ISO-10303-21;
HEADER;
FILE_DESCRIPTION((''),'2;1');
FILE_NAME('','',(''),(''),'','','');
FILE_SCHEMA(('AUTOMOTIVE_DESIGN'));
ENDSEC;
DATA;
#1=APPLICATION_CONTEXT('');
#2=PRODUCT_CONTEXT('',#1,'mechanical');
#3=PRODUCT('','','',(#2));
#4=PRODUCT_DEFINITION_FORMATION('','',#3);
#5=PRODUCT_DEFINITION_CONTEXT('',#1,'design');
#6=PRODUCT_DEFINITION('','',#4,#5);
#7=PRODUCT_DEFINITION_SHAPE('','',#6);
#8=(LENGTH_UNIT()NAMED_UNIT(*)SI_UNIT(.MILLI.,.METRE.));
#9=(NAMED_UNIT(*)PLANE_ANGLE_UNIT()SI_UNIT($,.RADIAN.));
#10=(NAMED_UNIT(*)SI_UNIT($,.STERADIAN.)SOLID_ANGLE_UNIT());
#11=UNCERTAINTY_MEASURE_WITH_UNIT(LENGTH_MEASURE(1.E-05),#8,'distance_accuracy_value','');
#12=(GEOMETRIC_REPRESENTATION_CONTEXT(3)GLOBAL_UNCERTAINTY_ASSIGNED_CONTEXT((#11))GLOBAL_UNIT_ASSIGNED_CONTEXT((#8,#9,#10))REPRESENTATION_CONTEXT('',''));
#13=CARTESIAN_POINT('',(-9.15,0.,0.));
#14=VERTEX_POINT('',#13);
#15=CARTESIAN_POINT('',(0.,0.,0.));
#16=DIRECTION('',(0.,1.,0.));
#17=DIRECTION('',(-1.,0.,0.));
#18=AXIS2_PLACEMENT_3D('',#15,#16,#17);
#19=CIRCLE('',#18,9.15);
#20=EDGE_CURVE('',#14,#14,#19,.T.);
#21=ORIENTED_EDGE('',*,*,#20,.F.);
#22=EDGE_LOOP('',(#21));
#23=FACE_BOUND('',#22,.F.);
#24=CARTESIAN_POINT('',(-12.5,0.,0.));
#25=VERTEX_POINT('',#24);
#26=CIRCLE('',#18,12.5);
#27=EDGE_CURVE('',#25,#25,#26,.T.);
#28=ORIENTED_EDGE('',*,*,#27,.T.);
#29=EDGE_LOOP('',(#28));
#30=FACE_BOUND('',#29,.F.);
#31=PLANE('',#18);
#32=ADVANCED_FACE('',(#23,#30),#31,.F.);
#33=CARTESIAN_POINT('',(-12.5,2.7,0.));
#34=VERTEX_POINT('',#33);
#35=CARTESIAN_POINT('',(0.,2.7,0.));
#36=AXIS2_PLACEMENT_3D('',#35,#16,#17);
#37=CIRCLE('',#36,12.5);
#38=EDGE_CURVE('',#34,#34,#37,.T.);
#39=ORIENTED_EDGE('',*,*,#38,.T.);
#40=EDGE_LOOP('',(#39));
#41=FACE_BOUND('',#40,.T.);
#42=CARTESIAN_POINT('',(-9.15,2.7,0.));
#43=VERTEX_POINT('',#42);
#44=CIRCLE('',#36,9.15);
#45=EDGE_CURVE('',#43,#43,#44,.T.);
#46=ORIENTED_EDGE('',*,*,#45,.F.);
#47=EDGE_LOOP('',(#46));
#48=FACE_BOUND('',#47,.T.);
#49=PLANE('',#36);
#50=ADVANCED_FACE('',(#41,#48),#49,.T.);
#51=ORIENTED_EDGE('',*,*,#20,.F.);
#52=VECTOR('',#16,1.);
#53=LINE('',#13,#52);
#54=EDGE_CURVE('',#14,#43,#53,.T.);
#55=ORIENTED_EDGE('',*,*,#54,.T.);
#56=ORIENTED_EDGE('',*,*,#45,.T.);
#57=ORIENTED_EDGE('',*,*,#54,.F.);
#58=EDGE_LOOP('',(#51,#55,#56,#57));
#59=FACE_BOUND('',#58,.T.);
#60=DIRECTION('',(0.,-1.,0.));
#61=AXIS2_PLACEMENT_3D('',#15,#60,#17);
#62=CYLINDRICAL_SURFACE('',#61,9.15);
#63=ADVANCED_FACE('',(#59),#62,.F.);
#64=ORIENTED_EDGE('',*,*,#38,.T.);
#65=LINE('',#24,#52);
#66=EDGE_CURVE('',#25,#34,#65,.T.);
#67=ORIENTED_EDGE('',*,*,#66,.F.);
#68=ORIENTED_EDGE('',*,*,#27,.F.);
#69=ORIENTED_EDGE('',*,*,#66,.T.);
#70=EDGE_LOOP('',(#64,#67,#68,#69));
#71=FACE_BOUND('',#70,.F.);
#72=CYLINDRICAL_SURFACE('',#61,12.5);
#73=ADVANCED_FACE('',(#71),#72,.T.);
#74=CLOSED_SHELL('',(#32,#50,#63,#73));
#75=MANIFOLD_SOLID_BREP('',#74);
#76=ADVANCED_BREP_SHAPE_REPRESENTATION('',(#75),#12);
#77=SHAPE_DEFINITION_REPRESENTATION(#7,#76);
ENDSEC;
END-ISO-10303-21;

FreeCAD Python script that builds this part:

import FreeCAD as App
import Part
import Sketcher
from FreeCAD import Vector

doc = App.newDocument("Part")
body = doc.addObject("PartDesign::Body", "Body")

sketch1 = body.newObject("Sketcher::SketchObject", "Sketch")
sketch1.AttachmentSupport = (doc.getObject("XZ_Plane"), [""])
sketch1.MapMode = "FlatFace"
sketch1.addGeometry([
    Part.Circle(Vector(0, 0, 0), Vector(0, 0, 1), 12.5),
    Part.Circle(Vector(0, 0, 0), Vector(0, 0, 1), 9.15),
], False)
sketch1.addConstraint([
    Sketcher.Constraint("Coincident", 0, 3, -1, 1),
    Sketcher.Constraint("Coincident", 1, 3, -1, 1),
    Sketcher.Constraint("Diameter", 0, 25.0),
    Sketcher.Constraint("Diameter", 1, 18.3),
])
pad1 = body.newObject("PartDesign::Pad", "Pad")
pad1.Profile = sketch1
pad1.Length = 2.7
pad1.Reversed = True

doc.recompute()
